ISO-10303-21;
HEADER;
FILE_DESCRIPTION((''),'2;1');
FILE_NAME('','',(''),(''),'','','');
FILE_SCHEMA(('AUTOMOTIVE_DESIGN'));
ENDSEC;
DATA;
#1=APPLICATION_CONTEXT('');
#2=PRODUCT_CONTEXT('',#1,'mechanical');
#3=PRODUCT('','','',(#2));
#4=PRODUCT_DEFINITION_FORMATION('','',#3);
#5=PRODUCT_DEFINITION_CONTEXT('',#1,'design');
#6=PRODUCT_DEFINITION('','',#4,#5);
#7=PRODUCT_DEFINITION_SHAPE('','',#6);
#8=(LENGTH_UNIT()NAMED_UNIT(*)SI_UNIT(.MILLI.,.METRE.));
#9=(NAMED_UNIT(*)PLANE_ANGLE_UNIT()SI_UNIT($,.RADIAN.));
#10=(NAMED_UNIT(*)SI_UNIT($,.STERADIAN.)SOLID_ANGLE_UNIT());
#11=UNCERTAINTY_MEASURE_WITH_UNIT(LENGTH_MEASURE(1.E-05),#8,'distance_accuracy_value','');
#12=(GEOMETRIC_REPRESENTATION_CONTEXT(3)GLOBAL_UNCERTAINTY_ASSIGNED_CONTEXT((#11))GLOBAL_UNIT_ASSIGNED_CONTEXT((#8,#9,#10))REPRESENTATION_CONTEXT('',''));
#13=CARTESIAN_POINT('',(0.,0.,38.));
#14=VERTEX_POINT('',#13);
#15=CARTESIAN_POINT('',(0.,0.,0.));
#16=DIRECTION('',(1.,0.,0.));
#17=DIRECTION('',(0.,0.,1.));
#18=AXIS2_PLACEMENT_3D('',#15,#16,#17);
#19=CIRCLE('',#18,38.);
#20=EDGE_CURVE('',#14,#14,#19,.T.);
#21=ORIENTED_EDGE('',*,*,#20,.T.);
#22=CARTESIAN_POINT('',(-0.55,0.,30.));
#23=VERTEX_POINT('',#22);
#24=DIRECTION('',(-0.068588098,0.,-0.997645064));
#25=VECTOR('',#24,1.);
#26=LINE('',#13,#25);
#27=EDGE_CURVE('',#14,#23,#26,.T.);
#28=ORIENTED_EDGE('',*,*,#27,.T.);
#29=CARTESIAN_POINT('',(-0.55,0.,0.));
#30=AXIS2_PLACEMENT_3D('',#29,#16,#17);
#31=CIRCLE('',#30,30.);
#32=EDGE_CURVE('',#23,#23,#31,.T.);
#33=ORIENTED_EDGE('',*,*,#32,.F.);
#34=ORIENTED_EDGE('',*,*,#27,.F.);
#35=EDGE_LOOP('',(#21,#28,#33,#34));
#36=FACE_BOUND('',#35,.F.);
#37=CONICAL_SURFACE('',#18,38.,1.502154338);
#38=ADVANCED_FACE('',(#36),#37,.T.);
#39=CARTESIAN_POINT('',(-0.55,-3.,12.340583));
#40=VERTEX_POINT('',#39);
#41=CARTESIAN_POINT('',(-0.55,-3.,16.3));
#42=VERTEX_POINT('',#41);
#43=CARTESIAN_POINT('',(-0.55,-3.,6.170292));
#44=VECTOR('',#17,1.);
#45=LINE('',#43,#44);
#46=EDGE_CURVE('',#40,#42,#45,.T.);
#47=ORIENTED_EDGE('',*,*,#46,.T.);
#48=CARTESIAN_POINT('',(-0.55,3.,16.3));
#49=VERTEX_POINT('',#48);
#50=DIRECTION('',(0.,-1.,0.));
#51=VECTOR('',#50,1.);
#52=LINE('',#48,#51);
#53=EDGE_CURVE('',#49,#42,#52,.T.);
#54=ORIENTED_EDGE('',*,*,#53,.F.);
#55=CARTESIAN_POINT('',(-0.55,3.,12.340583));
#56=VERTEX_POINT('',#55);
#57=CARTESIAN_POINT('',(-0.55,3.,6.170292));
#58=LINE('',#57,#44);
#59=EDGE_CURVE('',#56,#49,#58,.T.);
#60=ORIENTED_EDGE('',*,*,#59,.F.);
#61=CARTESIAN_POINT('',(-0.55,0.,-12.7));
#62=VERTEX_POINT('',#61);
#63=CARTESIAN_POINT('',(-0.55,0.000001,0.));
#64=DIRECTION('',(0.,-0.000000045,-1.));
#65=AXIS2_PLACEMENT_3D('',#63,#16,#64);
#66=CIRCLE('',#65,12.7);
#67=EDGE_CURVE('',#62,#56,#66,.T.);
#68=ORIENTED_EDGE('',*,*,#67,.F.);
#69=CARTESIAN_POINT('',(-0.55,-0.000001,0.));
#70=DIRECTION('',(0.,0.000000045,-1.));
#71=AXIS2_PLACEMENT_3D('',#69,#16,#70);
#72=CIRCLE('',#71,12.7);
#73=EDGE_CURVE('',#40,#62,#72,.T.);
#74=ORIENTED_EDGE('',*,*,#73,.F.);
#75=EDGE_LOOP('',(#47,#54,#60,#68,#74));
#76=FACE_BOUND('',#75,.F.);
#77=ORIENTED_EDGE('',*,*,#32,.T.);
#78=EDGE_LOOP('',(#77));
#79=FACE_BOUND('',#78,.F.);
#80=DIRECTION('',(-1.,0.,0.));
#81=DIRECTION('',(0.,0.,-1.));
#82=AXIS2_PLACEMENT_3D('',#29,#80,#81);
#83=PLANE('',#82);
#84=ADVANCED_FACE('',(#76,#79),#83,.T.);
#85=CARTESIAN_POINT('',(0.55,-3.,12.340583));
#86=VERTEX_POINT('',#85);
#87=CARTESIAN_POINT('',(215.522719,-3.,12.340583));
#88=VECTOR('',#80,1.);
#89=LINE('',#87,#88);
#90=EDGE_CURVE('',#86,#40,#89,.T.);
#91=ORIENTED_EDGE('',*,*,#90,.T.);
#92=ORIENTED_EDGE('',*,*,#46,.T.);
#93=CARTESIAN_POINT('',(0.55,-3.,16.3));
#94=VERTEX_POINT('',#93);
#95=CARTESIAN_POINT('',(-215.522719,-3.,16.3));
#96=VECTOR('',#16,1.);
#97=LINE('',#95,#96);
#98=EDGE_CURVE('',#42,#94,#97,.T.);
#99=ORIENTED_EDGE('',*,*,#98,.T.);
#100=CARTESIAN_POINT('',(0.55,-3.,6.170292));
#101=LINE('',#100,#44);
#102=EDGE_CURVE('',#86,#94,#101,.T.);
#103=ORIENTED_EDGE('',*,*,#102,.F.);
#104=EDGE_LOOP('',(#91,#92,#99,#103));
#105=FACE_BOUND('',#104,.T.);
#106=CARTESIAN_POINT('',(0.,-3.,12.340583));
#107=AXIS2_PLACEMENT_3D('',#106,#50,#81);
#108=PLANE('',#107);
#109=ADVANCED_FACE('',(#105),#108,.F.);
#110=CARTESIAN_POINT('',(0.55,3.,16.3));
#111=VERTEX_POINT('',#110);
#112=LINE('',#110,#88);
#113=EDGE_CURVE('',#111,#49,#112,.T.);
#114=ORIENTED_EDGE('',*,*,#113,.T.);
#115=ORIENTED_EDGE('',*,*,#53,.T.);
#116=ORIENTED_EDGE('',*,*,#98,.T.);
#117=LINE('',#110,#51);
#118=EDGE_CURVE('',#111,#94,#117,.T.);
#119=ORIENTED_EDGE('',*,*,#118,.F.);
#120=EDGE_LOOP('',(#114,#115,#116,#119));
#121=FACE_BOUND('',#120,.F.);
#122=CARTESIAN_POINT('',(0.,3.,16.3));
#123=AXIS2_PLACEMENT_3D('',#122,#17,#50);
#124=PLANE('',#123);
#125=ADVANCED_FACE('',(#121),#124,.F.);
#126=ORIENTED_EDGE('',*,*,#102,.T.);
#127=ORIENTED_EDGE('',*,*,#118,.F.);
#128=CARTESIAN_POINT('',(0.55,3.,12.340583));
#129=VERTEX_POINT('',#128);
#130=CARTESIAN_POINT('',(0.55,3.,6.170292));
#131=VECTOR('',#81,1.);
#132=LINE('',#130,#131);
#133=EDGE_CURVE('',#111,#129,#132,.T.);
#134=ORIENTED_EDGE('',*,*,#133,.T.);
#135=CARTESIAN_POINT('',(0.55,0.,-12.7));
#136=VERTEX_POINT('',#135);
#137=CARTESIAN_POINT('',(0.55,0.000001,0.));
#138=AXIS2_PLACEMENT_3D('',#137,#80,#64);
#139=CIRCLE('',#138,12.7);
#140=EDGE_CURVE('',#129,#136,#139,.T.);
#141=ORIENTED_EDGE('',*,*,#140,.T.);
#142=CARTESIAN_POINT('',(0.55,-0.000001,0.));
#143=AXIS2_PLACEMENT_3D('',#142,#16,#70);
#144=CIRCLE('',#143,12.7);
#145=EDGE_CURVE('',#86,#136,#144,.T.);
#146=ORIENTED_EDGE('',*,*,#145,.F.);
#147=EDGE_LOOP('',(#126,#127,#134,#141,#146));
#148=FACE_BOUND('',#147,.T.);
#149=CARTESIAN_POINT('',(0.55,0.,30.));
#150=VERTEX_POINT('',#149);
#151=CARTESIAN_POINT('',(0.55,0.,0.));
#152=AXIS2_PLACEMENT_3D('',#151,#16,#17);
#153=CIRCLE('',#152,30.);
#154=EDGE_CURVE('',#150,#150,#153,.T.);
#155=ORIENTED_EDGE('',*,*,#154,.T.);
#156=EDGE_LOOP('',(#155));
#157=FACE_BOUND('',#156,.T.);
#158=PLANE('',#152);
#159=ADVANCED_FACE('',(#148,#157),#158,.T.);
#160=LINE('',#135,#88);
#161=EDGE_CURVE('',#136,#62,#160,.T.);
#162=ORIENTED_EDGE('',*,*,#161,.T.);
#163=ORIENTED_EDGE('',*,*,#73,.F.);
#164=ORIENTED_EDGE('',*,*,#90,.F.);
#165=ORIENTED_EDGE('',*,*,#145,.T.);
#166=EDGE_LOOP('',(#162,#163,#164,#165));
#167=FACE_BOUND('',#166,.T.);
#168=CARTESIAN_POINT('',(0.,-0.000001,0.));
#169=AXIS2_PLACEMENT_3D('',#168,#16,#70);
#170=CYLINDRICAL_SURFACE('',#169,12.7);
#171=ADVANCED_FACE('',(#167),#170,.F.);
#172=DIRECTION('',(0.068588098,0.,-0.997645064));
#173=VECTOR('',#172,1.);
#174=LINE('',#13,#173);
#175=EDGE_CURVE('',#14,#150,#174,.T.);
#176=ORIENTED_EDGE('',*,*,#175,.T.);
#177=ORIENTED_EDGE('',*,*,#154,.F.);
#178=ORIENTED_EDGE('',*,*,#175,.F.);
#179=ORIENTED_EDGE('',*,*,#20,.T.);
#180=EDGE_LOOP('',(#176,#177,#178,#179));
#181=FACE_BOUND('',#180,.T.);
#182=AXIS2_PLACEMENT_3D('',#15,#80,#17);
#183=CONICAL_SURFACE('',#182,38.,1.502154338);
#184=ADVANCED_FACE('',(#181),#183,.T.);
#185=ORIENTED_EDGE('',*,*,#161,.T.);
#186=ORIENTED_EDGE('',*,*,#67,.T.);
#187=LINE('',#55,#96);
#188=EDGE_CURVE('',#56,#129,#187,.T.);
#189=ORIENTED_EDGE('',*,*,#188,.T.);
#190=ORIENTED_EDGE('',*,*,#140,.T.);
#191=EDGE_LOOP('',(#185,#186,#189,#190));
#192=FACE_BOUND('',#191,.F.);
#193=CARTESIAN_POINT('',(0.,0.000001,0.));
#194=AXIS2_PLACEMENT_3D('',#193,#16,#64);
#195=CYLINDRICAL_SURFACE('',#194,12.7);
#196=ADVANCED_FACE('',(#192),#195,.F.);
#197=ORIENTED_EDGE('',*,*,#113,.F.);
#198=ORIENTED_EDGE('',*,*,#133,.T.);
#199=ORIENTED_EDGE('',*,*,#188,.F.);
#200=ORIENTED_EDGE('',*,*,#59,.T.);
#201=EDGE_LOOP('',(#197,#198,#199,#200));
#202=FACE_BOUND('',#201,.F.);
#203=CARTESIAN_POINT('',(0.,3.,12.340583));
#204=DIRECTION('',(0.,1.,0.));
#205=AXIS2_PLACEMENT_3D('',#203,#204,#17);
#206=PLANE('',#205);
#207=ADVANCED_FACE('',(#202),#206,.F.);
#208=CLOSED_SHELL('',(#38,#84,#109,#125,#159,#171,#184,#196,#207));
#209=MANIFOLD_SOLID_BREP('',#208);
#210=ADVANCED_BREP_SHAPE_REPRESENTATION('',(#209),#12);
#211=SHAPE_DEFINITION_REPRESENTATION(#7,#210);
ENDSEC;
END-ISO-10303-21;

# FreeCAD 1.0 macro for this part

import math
import FreeCAD as App
import Part
import Sketcher
from FreeCAD import Vector
Q = App.Units.Quantity

doc = App.newDocument("Part")
params = doc.addObject("Spreadsheet::Sheet", "Params")
for row, (alias, value) in enumerate([
    ("sketch1_height", "38 mm"),
    ("sketch1_height2", "30 mm"),
    ("sketch1_width", "0.55 mm"),
    ("revolution_angle", "360 deg"),
    ("sketch2_radius", "12.7 mm"),
    ("sketch2_width", "3 mm"),
    ("sketch2_height", "29 mm"),
], start=1):
    params.set(f"A{row}", alias)
    params.set(f"B{row}", "=" + value)
    params.setAlias(f"B{row}", alias)

body = doc.addObject("PartDesign::Body", "Body")

# Sketch on XZ plane
sketch1 = body.newObject("Sketcher::SketchObject", "Sketch")
sketch1.AttachmentSupport = (doc.getObject("XZ_Plane"), [""])
sketch1.MapMode = "FlatFace"
sketch1.addGeometry([
    Part.LineSegment(Vector(0.55, 30, 0), Vector(0, 38, 0)),
    Part.LineSegment(Vector(0, 38, 0), Vector(0, 0, 0)),
    Part.LineSegment(Vector(0, 0, 0), Vector(0.55, 0, 0)),
    Part.LineSegment(Vector(0.55, 0, 0), Vector(0.55, 30, 0)),
], False)
sketch1.addConstraint([
    Sketcher.Constraint("Coincident", 0, 2, 1, 1),
    Sketcher.Constraint("Coincident", 1, 2, 2, 1),
    Sketcher.Constraint("Coincident", 2, 2, 3, 1),
    Sketcher.Constraint("Coincident", 3, 2, 0, 1),
    Sketcher.Constraint("Vertical", 1),
    Sketcher.Constraint("Horizontal", 2),
    Sketcher.Constraint("Vertical", 3),
    Sketcher.Constraint("Coincident", 1, 2, -1, 1),
    Sketcher.Constraint("DistanceY", 1, 2, 1, 1, Q("38 mm")),
    Sketcher.Constraint("DistanceY", 3, 1, 3, 2, Q("30 mm")),
    Sketcher.Constraint("DistanceX", 2, 1, 2, 2, Q("0.55 mm")),
])
sketch1.setExpression("Constraints[8]", "Params.sketch1_height")
sketch1.setExpression("Constraints[9]", "Params.sketch1_height2")
sketch1.setExpression("Constraints[10]", "Params.sketch1_width")
revolution = body.newObject("PartDesign::Revolution", "Revolution")
revolution.Profile = sketch1
revolution.ReferenceAxis = (sketch1, ["H_Axis"])
revolution.setExpression("Angle", "Params.revolution_angle")
doc.recompute()

mirrored = body.newObject("PartDesign::Mirrored", "Mirrored")
mirrored.Originals = [revolution]
mirrored.MirrorPlane = (doc.getObject("YZ_Plane"), [""])
body.Tip = mirrored

# Sketch on YZ plane
sketch2 = body.newObject("Sketcher::SketchObject", "Sketch001")
sketch2.AttachmentSupport = (doc.getObject("YZ_Plane"), [""])
sketch2.MapMode = "FlatFace"
sketch2.addGeometry([
    Part.LineSegment(Vector(3, 12.340583, 0), Vector(3, 16.3, 0)),
    Part.LineSegment(Vector(3, 16.3, 0), Vector(0, 16.3, 0)),
    Part.LineSegment(Vector(0, 16.3, 0), Vector(0, -12.7, 0)),
    Part.ArcOfCircle(Part.Circle(Vector(0.000001, 0, 0), Vector(0, 0, 1), 12.7), math.radians(-90.000003), math.radians(76.336426)),
], False)
sketch2.addConstraint([
    Sketcher.Constraint("Coincident", 0, 2, 1, 1),
    Sketcher.Constraint("Coincident", 1, 2, 2, 1),
    Sketcher.Constraint("Coincident", 2, 2, 3, 1),
    Sketcher.Constraint("Coincident", 3, 2, 0, 1),
    Sketcher.Constraint("Vertical", 0),
    Sketcher.Constraint("Horizontal", 1),
    Sketcher.Constraint("Vertical", 2),
    Sketcher.Constraint("Coincident", 3, 3, -1, 1),
    Sketcher.Constraint("PointOnObject", 1, 2, -2),
    Sketcher.Constraint("Radius", 3, Q("12.7 mm")),
    Sketcher.Constraint("DistanceX", 1, 2, 1, 1, Q("3 mm")),
    Sketcher.Constraint("DistanceY", 2, 2, 2, 1, Q("29 mm")),
])
sketch2.setExpression("Constraints[9]", "Params.sketch2_radius")
sketch2.setExpression("Constraints[10]", "Params.sketch2_width")
sketch2.setExpression("Constraints[11]", "Params.sketch2_height")
pocket1 = body.newObject("PartDesign::Pocket", "Pocket")
pocket1.Profile = sketch2
pocket1.Type = "ThroughAll"
pocket1.Midplane = True
doc.recompute()

mirrored2 = body.newObject("PartDesign::Mirrored", "Mirrored001")
mirrored2.Originals = [pocket1]
mirrored2.MirrorPlane = (doc.getObject("XZ_Plane"), [""])
body.Tip = mirrored2

doc.recompute()
